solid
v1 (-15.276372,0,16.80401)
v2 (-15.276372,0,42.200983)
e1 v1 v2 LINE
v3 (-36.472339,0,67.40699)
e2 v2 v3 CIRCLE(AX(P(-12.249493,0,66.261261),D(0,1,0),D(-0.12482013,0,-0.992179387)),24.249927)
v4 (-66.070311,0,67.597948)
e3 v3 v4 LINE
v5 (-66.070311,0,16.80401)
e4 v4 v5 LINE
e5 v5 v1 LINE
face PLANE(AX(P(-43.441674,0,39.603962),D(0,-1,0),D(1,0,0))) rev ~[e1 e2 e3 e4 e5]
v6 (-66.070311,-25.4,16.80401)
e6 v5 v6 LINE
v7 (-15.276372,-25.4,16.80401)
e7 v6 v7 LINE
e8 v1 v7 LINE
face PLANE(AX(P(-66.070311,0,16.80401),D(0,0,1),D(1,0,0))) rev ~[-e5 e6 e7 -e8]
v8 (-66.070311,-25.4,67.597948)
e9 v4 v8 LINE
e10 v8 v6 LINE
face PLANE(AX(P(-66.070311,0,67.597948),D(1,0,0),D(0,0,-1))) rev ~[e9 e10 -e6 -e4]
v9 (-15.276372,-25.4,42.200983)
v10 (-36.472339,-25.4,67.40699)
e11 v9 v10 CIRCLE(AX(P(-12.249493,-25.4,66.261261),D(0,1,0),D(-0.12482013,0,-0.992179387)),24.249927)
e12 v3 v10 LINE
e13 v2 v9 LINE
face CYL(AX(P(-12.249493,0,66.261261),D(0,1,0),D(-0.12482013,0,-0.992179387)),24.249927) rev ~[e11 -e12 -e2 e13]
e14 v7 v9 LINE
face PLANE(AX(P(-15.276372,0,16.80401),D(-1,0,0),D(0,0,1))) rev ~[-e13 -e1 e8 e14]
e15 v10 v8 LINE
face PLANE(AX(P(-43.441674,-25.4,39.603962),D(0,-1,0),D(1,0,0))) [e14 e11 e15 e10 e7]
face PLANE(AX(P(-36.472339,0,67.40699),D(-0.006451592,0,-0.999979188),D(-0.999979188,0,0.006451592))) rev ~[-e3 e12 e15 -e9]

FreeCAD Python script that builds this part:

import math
import FreeCAD as App
import Part
import Sketcher
Q = App.Units.Quantity

doc = App.newDocument("Part")
body = doc.addObject("PartDesign::Body", "Body")

# Sketch on XZ plane
sketch1 = body.newObject("Sketcher::SketchObject", "Sketch")
sketch1.AttachmentSupport = (doc.getObject("XZ_Plane"), [""])
sketch1.MapMode = "FlatFace"
sketch1.addGeometry(Part.LineSegment(App.Vector(-36.472339, 67.40699, 0), App.Vector(-66.070311, 67.597948, 0)), False)
sketch1.addGeometry(Part.LineSegment(App.Vector(-66.070311, 67.597948, 0), App.Vector(-66.070311, 16.80401, 0)), False)
sketch1.addGeometry(Part.LineSegment(App.Vector(-66.070311, 16.80401, 0), App.Vector(-15.276372, 16.80401, 0)), False)
sketch1.addGeometry(Part.LineSegment(App.Vector(-15.276372, 16.80401, 0), App.Vector(-15.276372, 42.200983, 0)), False)
sketch1.addGeometry(Part.ArcOfCircle(Part.Circle(App.Vector(-12.249493, 66.261261, 0), App.Vector(0, 0, 1), 24.249927), math.radians(177.291955), math.radians(262.829631)), False)
sketch1.addConstraint(Sketcher.Constraint("Coincident", 0, 2, 1, 1))
sketch1.addConstraint(Sketcher.Constraint("Coincident", 1, 2, 2, 1))
sketch1.addConstraint(Sketcher.Constraint("Coincident", 2, 2, 3, 1))
sketch1.addConstraint(Sketcher.Constraint("Coincident", 3, 2, 4, 2))
sketch1.addConstraint(Sketcher.Constraint("Coincident", 4, 1, 0, 1))
sketch1.addConstraint(Sketcher.Constraint("Vertical", 1))
sketch1.addConstraint(Sketcher.Constraint("Horizontal", 2))
sketch1.addConstraint(Sketcher.Constraint("Vertical", 3))
sketch1.addConstraint(Sketcher.Constraint("Radius", 4, Q("24.249927 mm")))
sketch1.addConstraint(Sketcher.Constraint("DistanceX", 2, 1, 2, 2, Q("50.793939 mm")))
sketch1.addConstraint(Sketcher.Constraint("DistanceY", 1, 2, 1, 1, Q("50.793938 mm")))
sketch1.addConstraint(Sketcher.Constraint("DistanceY", 3, 1, 3, 2, Q("25.396973 mm")))
sketch1.addConstraint(Sketcher.Constraint("DistanceY", -1, 1, 4, 3, Q("66.261261 mm")))
sketch1.addConstraint(Sketcher.Constraint("DistanceX", 0, 2, -1, 1, Q("66.070311 mm")))
sketch1.addConstraint(Sketcher.Constraint("DistanceY", -1, 1, 0, 2, Q("67.597948 mm")))
sketch1.addConstraint(Sketcher.Constraint("DistanceX", 4, 1, -1, 1, Q("36.472339 mm")))
pad1 = body.newObject("PartDesign::Pad", "Pad")
pad1.Profile = sketch1
pad1.Length = Q("1 in")

doc.recompute()
